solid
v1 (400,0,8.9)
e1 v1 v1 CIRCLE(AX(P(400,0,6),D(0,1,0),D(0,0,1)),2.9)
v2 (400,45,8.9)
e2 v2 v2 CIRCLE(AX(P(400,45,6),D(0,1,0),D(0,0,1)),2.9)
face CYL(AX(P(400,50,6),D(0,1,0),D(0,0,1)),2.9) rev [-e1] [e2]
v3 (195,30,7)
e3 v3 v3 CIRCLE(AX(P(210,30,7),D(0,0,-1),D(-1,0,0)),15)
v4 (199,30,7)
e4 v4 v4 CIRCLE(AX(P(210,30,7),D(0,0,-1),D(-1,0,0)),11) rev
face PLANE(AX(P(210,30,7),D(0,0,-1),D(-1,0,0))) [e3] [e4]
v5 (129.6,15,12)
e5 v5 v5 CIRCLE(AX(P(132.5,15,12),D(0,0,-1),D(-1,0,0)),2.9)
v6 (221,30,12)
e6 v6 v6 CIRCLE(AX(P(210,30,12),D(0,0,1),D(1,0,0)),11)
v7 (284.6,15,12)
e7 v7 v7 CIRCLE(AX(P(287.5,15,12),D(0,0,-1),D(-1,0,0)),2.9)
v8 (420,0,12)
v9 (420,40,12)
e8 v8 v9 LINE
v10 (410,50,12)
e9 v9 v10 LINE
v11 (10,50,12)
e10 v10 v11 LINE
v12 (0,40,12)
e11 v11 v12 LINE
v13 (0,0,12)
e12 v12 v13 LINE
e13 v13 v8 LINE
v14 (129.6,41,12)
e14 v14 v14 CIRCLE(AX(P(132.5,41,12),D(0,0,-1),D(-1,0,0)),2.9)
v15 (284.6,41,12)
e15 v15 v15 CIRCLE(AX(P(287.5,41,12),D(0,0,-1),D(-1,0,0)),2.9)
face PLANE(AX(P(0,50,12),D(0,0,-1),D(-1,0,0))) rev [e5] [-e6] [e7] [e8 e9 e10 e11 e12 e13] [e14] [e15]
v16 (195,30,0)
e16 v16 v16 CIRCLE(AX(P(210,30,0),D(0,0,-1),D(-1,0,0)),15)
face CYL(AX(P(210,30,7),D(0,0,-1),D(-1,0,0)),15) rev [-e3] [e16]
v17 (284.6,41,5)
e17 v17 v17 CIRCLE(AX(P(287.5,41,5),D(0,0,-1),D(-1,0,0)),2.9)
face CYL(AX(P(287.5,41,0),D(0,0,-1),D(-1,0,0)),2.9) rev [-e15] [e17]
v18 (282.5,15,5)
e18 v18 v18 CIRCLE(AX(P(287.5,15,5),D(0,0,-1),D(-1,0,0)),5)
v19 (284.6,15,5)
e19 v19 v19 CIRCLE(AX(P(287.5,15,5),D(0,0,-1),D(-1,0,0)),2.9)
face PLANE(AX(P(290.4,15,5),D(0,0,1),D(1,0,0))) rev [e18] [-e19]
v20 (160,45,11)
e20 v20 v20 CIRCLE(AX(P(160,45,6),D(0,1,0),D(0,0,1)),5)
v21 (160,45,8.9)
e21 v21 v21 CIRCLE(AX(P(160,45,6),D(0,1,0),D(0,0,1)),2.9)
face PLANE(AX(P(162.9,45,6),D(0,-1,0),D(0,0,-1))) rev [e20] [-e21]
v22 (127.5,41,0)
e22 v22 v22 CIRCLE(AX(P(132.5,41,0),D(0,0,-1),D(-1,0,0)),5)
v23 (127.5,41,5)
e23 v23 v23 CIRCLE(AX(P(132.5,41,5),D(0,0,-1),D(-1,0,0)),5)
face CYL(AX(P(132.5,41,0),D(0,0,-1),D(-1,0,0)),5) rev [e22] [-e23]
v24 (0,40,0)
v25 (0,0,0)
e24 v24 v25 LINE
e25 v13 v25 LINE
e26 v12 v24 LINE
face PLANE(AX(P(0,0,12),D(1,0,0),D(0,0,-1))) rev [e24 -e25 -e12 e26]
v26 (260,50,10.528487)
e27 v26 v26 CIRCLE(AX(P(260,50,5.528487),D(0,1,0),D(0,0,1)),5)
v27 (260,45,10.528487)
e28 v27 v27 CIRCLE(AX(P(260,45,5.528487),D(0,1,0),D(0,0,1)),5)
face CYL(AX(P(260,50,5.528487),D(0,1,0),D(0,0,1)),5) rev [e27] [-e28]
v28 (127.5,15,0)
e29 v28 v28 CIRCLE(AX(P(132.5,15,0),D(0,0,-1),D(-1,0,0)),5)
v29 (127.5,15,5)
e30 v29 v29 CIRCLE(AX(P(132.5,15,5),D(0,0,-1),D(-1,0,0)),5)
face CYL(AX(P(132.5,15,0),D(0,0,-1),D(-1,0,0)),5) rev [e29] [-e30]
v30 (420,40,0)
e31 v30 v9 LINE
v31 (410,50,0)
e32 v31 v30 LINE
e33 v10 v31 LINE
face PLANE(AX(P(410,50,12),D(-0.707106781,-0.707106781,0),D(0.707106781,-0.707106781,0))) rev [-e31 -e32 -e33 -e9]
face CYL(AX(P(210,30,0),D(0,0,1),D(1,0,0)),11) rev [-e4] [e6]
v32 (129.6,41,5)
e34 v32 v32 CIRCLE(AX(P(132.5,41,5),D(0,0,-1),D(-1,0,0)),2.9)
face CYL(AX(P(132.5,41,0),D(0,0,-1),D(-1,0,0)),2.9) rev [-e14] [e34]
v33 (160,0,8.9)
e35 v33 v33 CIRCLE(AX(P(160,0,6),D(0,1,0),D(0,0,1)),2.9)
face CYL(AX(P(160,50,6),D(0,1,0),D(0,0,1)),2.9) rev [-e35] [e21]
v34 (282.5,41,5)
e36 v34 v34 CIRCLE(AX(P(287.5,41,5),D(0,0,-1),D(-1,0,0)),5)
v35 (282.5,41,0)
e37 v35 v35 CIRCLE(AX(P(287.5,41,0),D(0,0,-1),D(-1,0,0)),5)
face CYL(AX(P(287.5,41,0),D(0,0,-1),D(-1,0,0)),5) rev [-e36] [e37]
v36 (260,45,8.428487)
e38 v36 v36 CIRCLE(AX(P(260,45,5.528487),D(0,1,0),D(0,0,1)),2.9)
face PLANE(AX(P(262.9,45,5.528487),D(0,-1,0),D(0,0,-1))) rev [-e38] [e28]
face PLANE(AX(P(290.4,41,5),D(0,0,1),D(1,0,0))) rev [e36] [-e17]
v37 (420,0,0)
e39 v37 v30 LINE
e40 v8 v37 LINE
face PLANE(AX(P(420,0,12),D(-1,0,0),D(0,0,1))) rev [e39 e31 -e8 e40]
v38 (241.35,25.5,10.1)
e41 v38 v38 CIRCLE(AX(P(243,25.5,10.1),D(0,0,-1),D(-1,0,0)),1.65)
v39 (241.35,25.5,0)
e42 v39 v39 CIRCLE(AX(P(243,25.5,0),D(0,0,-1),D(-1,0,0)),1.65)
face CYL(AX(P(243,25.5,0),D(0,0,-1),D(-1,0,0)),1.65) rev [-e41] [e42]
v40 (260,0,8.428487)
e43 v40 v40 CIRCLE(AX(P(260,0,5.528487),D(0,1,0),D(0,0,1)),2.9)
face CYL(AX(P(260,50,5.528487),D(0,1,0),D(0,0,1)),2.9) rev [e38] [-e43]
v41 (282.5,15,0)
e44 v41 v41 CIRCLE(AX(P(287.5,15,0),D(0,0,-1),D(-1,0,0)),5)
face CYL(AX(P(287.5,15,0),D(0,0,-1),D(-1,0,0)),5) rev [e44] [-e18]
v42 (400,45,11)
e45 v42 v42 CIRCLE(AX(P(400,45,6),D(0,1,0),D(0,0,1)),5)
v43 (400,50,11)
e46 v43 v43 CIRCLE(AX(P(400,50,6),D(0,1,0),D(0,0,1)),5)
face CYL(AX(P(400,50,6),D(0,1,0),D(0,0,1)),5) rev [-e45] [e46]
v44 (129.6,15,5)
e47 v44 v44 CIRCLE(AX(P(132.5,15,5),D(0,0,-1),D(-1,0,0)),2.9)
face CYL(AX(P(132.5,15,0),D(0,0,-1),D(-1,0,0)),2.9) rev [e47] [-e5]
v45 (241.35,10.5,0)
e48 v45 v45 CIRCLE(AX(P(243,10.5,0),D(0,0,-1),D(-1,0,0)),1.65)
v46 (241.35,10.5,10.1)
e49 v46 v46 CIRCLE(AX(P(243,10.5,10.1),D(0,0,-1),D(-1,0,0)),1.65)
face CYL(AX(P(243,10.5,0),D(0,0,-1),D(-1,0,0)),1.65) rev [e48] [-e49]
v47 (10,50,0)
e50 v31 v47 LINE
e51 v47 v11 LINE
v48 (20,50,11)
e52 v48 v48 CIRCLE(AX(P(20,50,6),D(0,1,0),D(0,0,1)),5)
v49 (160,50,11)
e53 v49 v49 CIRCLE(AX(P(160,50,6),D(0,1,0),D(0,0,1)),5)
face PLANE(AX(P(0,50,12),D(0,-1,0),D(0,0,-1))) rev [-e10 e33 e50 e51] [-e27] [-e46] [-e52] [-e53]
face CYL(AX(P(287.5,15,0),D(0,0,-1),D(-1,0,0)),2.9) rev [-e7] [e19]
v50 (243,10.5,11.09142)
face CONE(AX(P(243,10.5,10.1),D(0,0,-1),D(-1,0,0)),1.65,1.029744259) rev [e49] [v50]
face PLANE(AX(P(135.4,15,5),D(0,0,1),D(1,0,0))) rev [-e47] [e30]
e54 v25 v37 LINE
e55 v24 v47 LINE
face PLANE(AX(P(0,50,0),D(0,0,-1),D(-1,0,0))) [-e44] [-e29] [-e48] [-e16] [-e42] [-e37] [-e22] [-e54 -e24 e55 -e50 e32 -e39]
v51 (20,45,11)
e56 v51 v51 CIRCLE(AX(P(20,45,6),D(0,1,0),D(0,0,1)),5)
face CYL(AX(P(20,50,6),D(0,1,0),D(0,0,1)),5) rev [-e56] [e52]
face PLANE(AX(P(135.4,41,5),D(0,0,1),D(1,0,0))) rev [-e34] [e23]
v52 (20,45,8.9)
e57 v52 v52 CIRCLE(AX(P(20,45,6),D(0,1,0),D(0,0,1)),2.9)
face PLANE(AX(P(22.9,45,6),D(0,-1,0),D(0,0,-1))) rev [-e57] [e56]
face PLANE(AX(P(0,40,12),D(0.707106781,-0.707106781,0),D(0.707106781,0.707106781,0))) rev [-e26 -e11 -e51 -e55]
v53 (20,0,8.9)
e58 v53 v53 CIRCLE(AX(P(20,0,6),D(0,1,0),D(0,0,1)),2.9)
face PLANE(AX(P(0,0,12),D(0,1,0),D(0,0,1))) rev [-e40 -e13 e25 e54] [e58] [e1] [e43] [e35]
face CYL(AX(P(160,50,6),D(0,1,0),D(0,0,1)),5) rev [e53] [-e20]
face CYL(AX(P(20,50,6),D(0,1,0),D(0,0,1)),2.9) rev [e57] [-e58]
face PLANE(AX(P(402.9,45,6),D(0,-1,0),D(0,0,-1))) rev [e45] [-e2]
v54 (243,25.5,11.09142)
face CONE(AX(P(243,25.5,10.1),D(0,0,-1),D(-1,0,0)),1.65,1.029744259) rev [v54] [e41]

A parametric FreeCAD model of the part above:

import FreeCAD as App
import Part
import Sketcher
from FreeCAD import Vector
Q = App.Units.Quantity


def edges_at(feature, points):
    """Names of the edges that pass closest to the given points."""
    edges = feature.Shape.Edges
    near = lambda p: min(range(len(edges)), key=lambda i: edges[i].distToShape(Part.Vertex(*p))[0])
    return sorted({f"Edge{near(p) + 1}" for p in points})

doc = App.newDocument("Part")
body = doc.addObject("PartDesign::Body", "Body")

sketch1 = body.newObject("Sketcher::SketchObject", "Sketch")
sketch1.AttachmentSupport = (doc.getObject("XY_Plane"), [""])
sketch1.MapMode = "FlatFace"
sketch1.addGeometry([
    Part.LineSegment(Vector(0, 50, 0), Vector(0, 0, 0)),
    Part.LineSegment(Vector(0, 0, 0), Vector(420, 0, 0)),
    Part.LineSegment(Vector(420, 0, 0), Vector(420, 50, 0)),
    Part.LineSegment(Vector(420, 50, 0), Vector(0, 50, 0)),
], False)
sketch1.addConstraint([
    Sketcher.Constraint("Coincident", 0, 2, 1, 1),
    Sketcher.Constraint("Coincident", 1, 2, 2, 1),
    Sketcher.Constraint("Coincident", 2, 2, 3, 1),
    Sketcher.Constraint("Coincident", 3, 2, 0, 1),
    Sketcher.Constraint("Vertical", 0),
    Sketcher.Constraint("Horizontal", 1),
    Sketcher.Constraint("Vertical", 2),
    Sketcher.Constraint("Horizontal", 3),
    Sketcher.Constraint("Coincident", 0, 2, -1, 1),
    Sketcher.Constraint("DistanceX", 1, 1, 1, 2, Q("420 mm")),
    Sketcher.Constraint("DistanceY", 0, 2, 0, 1, Q("50 mm")),
])
pad1 = body.newObject("PartDesign::Pad", "Pad")
pad1.Profile = sketch1
pad1.Length = 12
doc.recompute()

chamfer = body.newObject("PartDesign::Chamfer", "Chamfer")
chamfer.Base = (pad1, edges_at(pad1, [(0, 50, 6), (420, 50, 6)]))
chamfer.Size = 10

sketch2 = body.newObject("Sketcher::SketchObject", "Sketch001")
sketch2.AttachmentSupport = (doc.getObject("XY_Plane"), [""])
sketch2.MapMode = "FlatFace"
sketch2.AttachmentOffset = App.Placement(Vector(0, 0, 12), App.Rotation())
sketch2.addGeometry(Part.Circle(Vector(210, 30, 0), Vector(0, 0, 1), 11), False)
sketch2.addConstraint([
    Sketcher.Constraint("Diameter", 0, Q("22 mm")),
    Sketcher.Constraint("DistanceX", -1, 1, 0, 3, Q("210 mm")),
    Sketcher.Constraint("DistanceY", -1, 1, 0, 3, Q("30 mm")),
])
pocket1 = body.newObject("PartDesign::Pocket", "Pocket")
pocket1.Profile = sketch2
pocket1.Type = "ThroughAll"

sketch3 = body.newObject("Sketcher::SketchObject", "Sketch002")
sketch3.AttachmentSupport = (doc.getObject("XY_Plane"), [""])
sketch3.MapMode = "FlatFace"
sketch3.addGeometry(Part.Circle(Vector(210, 30, 0), Vector(0, 0, 1), 15), False)
sketch3.addConstraint([
    Sketcher.Constraint("Diameter", 0, Q("30 mm")),
    Sketcher.Constraint("DistanceX", -1, 1, 0, 3, Q("210 mm")),
    Sketcher.Constraint("DistanceY", -1, 1, 0, 3, Q("30 mm")),
])
pocket2 = body.newObject("PartDesign::Pocket", "Pocket001")
pocket2.Profile = sketch3
pocket2.Length = 7
pocket2.Reversed = True

sketch4 = body.newObject("Sketcher::SketchObject", "Sketch003")
sketch4.AttachmentSupport = (doc.getObject("XZ_Plane"), [""])
sketch4.MapMode = "FlatFace"
sketch4.AttachmentOffset = App.Placement(Vector(0, 0, -50), App.Rotation())
sketch4.addGeometry([
    Part.Circle(Vector(20, 6, 0), Vector(0, 0, 1), 2.9),
    Part.Circle(Vector(160, 6, 0), Vector(0, 0, 1), 2.9),
    Part.Circle(Vector(260, 5.5, 0), Vector(0, 0, 1), 2.9),
    Part.Circle(Vector(400, 6, 0), Vector(0, 0, 1), 2.9),
], False)
sketch4.addConstraint([
    Sketcher.Constraint("Equal", 0, 1),
    Sketcher.Constraint("Equal", 1, 2),
    Sketcher.Constraint("Equal", 2, 3),
    Sketcher.Constraint("Horizontal", 0, 3, 1, 3),
    Sketcher.Constraint("Horizontal", 1, 3, 3, 3),
    Sketcher.Constraint("Diameter", 0, Q("5.8 mm")),
    Sketcher.Constraint("DistanceX", -1, 1, 0, 3, Q("20 mm")),
    Sketcher.Constraint("DistanceY", -1, 1, 0, 3, Q("6 mm")),
    Sketcher.Constraint("DistanceX", -1, 1, 1, 3, Q("160 mm")),
    Sketcher.Constraint("DistanceX", -1, 1, 2, 3, Q("260 mm")),
    Sketcher.Constraint("DistanceX", -1, 1, 3, 3, Q("400 mm")),
    Sketcher.Constraint("DistanceY", -1, 1, 2, 3, Q("5.528487 mm")),
])
doc.recompute()
hole = body.newObject("PartDesign::Hole", "Hole")
hole.Profile = sketch4
hole.ThreadType = "None"
hole.Diameter = 5.8
hole.DepthType = "ThroughAll"
hole.HoleCutType = "Counterbore"
hole.HoleCutDiameter = 10
hole.HoleCutDepth = 5
hole.Reversed = True

sketch5 = body.newObject("Sketcher::SketchObject", "Sketch004")
sketch5.AttachmentSupport = (doc.getObject("XY_Plane"), [""])
sketch5.MapMode = "FlatFace"
sketch5.addGeometry([
    Part.Circle(Vector(287.5, 41, 0), Vector(0, 0, 1), 2.9),
    Part.Circle(Vector(287.5, 15, 0), Vector(0, 0, 1), 2.9),
    Part.Circle(Vector(132.5, 41, 0), Vector(0, 0, 1), 2.9),
    Part.Circle(Vector(132.5, 15, 0), Vector(0, 0, 1), 2.9),
], False)
sketch5.addConstraint([
    Sketcher.Constraint("Equal", 0, 1),
    Sketcher.Constraint("Equal", 1, 2),
    Sketcher.Constraint("Equal", 2, 3),
    Sketcher.Constraint("Horizontal", 0, 3, 2, 3),
    Sketcher.Constraint("Horizontal", 1, 3, 3, 3),
    Sketcher.Constraint("Vertical", 0, 3, 1, 3),
    Sketcher.Constraint("Vertical", 2, 3, 3, 3),
    Sketcher.Constraint("Diameter", 0, Q("5.8 mm")),
    Sketcher.Constraint("DistanceY", -1, 1, 0, 3, Q("41 mm")),
    Sketcher.Constraint("DistanceY", -1, 1, 1, 3, Q("15 mm")),
    Sketcher.Constraint("DistanceX", 2, 3, 0, 3, Q("155 mm")),
    Sketcher.Constraint("DistanceX", -1, 1, 0, 3, Q("287.5 mm")),
])
doc.recompute()
hole2 = body.newObject("PartDesign::Hole", "Hole001")
hole2.Profile = sketch5
hole2.ThreadType = "None"
hole2.Diameter = 5.8
hole2.DepthType = "ThroughAll"
hole2.HoleCutType = "Counterbore"
hole2.HoleCutDiameter = 10
hole2.HoleCutDepth = 5
hole2.Reversed = True

sketch6 = body.newObject("Sketcher::SketchObject", "Sketch005")
sketch6.AttachmentSupport = (doc.getObject("XY_Plane"), [""])
sketch6.MapMode = "FlatFace"
sketch6.addGeometry([
    Part.Circle(Vector(243, 25.5, 0), Vector(0, 0, 1), 1.6),
    Part.Circle(Vector(243, 10.5, 0), Vector(0, 0, 1), 1.6),
], False)
sketch6.addConstraint([
    Sketcher.Constraint("Equal", 0, 1),
    Sketcher.Constraint("Vertical", 0, 3, 1, 3),
    Sketcher.Constraint("Diameter", 0, Q("3.3 mm")),
    Sketcher.Constraint("DistanceX", -1, 1, 0, 3, Q("243 mm")),
    Sketcher.Constraint("DistanceY", 1, 3, 0, 3, Q("15 mm")),
    Sketcher.Constraint("DistanceY", -1, 1, 0, 3, Q("25.5 mm")),
])
doc.recompute()
hole3 = body.newObject("PartDesign::Hole", "Hole002")
hole3.Profile = sketch6
hole3.ThreadType = "None"
hole3.Diameter = 3.3
hole3.DepthType = "Dimension"
hole3.Depth = 10.1
hole3.DrillPoint = "Angled"
hole3.DrillPointAngle = 118
hole3.Reversed = True

doc.recompute()
